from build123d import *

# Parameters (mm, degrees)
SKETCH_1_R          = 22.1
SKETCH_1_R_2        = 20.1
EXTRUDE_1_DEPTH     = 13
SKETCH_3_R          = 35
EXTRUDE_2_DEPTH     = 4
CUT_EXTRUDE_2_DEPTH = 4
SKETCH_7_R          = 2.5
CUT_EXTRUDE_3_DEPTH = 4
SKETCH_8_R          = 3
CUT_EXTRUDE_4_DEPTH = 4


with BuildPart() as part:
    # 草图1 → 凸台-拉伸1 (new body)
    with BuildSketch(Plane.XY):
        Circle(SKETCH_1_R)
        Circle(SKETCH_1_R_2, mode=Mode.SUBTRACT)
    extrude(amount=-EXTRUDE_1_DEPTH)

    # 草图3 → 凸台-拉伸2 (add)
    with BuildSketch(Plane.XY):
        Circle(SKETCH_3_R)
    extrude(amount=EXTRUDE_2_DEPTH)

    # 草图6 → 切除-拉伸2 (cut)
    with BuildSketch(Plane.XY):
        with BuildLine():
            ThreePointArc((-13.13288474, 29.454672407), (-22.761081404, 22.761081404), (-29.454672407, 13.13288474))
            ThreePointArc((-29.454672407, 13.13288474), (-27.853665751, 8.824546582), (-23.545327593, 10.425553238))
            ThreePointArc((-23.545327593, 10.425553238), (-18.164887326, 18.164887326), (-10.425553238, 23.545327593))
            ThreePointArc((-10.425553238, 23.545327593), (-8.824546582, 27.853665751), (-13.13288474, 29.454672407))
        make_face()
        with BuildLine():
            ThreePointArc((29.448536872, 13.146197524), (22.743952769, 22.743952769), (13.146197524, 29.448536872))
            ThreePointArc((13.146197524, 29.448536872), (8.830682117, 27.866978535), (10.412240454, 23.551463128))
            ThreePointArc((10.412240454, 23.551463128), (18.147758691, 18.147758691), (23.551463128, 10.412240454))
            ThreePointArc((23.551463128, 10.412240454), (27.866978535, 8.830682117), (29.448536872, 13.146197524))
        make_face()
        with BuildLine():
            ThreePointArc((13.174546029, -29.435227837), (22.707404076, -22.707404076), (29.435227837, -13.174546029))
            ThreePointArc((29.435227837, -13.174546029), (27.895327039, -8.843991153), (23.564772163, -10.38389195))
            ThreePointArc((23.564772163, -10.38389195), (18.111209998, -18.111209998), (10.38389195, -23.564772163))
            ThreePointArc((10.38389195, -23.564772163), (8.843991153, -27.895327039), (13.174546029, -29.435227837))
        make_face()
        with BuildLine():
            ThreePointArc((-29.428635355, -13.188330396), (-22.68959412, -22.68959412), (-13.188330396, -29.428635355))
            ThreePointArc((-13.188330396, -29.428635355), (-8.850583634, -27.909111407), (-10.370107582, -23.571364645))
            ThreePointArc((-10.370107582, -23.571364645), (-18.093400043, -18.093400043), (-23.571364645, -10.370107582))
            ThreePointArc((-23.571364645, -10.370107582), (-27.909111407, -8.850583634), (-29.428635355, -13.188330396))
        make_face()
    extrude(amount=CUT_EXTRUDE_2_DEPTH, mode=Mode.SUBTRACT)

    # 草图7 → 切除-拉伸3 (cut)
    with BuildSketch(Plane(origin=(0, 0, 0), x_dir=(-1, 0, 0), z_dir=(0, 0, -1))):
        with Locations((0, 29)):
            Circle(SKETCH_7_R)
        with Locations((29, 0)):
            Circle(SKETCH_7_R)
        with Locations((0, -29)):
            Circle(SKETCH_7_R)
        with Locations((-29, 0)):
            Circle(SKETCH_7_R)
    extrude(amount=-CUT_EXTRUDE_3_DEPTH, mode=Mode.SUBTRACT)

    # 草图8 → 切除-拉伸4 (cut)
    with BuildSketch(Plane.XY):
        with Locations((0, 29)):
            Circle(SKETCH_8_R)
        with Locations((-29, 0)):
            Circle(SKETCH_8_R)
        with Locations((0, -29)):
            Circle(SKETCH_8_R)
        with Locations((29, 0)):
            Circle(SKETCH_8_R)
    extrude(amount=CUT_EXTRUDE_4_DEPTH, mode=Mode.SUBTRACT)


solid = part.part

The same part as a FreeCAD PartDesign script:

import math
import FreeCAD as App
import Part
import Sketcher

doc = App.newDocument("Part")
params = doc.addObject("Spreadsheet::Sheet", "Params")
for row, (alias, value) in enumerate([
    ("sketch1_diameter", "44.2 mm"),
    ("sketch1_diameter2", "40.2 mm"),
    ("pad1_length", "13 mm"),
    ("sketch2_diameter", "70 mm"),
    ("pad2_length", "4 mm"),
    ("sketch3_radius", "3.25 mm"),
    ("pocket1_length", "4 mm"),
    ("sketch4_diameter", "5 mm"),
    ("pocket2_length", "4 mm"),
    ("sketch5_diameter", "6 mm"),
    ("pocket3_length", "4 mm"),
], start=1):
    params.set(f"A{row}", alias)
    params.set(f"B{row}", "=" + value)
    params.setAlias(f"B{row}", alias)

body = doc.addObject("PartDesign::Body", "Body")

# Sketch on XY plane
sketch1 = body.newObject("Sketcher::SketchObject", "Sketch")
sketch1.AttachmentSupport = (doc.getObject("XY_Plane"), [""])
sketch1.MapMode = "FlatFace"
sketch1.addGeometry([
    Part.Circle(App.Vector(0, 0, 0), App.Vector(0, 0, 1), 22.1),
    Part.Circle(App.Vector(0, 0, 0), App.Vector(0, 0, 1), 20.1),
], False)
sketch1.addConstraint([
    Sketcher.Constraint("Coincident", 0, 3, -1, 1),
    Sketcher.Constraint("Coincident", 1, 3, -1, 1),
    Sketcher.Constraint("Diameter", 0, 44.2),
    Sketcher.Constraint("Diameter", 1, 40.2),
])
sketch1.setExpression("Constraints[2]", "Params.sketch1_diameter")
sketch1.setExpression("Constraints[3]", "Params.sketch1_diameter2")
pad1 = body.newObject("PartDesign::Pad", "Pad")
pad1.Profile = sketch1
pad1.setExpression("Length", "Params.pad1_length")
pad1.Reversed = True

# Sketch on XY plane
sketch2 = body.newObject("Sketcher::SketchObject", "Sketch001")
sketch2.AttachmentSupport = (doc.getObject("XY_Plane"), [""])
sketch2.MapMode = "FlatFace"
sketch2.addGeometry(Part.Circle(App.Vector(0, 0, 0), App.Vector(0, 0, 1), 35), False)
sketch2.addConstraint([
    Sketcher.Constraint("Coincident", 0, 3, -1, 1),
    Sketcher.Constraint("Diameter", 0, 70.0),
])
sketch2.setExpression("Constraints[1]", "Params.sketch2_diameter")
pad2 = body.newObject("PartDesign::Pad", "Pad001")
pad2.Profile = sketch2
pad2.setExpression("Length", "Params.pad2_length")

# Sketch on XY plane
sketch3 = body.newObject("Sketcher::SketchObject", "Sketch002")
sketch3.AttachmentSupport = (doc.getObject("XY_Plane"), [""])
sketch3.MapMode = "FlatFace"
sketch3.addGeometry([
    Part.ArcOfCircle(Part.Circle(App.Vector(0.667336, -0.667336, 0), App.Vector(0, 0, 1), 33.132785), math.radians(114.614604), math.radians(155.385396)),  # 0
    Part.ArcOfCircle(Part.Circle(App.Vector(-26.5, 11.779219, 0), App.Vector(0, 0, 1), 3.25), math.radians(155.385396), math.radians(335.385396)),  # 1
    Part.ArcOfCircle(Part.Circle(App.Vector(0.667336, -0.667336, 0), App.Vector(0, 0, 1), 26.632785), math.radians(114.614604), math.radians(155.385396)),  # 2
    Part.ArcOfCircle(Part.Circle(App.Vector(-11.779219, 26.5, 0), App.Vector(0, 0, 1), 3.25), math.radians(-65.385396), math.radians(114.614604)),  # 3
    Part.ArcOfCircle(Part.Circle(App.Vector(-0.944303, -0.944303, 0), App.Vector(0, 0, 1), 33.500252), math.radians(24.873028), math.radians(65.126972)),  # 4
    Part.ArcOfCircle(Part.Circle(App.Vector(11.779219, 26.5, 0), App.Vector(0, 0, 1), 3.25), math.radians(65.126972), math.radians(245.126972)),  # 5
    Part.ArcOfCircle(Part.Circle(App.Vector(-0.944303, -0.944303, 0), App.Vector(0, 0, 1), 27.000252), math.radians(24.873028), math.radians(65.126972)),  # 6
    Part.ArcOfCircle(Part.Circle(App.Vector(26.5, 11.779219, 0), App.Vector(0, 0, 1), 3.25), math.radians(-155.126972), math.radians(24.873028)),  # 7
    Part.ArcOfCircle(Part.Circle(App.Vector(-1.5595, 1.5595, 0), App.Vector(0, 0, 1), 34.318585), math.radians(-64.574864), math.radians(-25.425136)),  # 8
    Part.ArcOfCircle(Part.Circle(App.Vector(26.5, -11.779219, 0), App.Vector(0, 0, 1), 3.25), math.radians(-25.425136), math.radians(154.574864)),  # 9
    Part.ArcOfCircle(Part.Circle(App.Vector(-1.5595, 1.5595, 0), App.Vector(0, 0, 1), 27.818585), math.radians(-64.574864), math.radians(-25.425136)),  # 10
    Part.ArcOfCircle(Part.Circle(App.Vector(11.779219, -26.5, 0), App.Vector(0, 0, 1), 3.25), math.radians(115.425136), math.radians(295.425136)),  # 11
    Part.ArcOfCircle(Part.Circle(App.Vector(1.871912, 1.871912, 0), App.Vector(0, 0, 1), 34.735215), math.radians(-154.30549), math.radians(-115.69451)),  # 12
    Part.ArcOfCircle(Part.Circle(App.Vector(-11.779219, -26.5, 0), App.Vector(0, 0, 1), 3.25), math.radians(-115.69451), math.radians(64.30549)),  # 13
    Part.ArcOfCircle(Part.Circle(App.Vector(1.871912, 1.871912, 0), App.Vector(0, 0, 1), 28.235215), math.radians(-154.30549), math.radians(-115.69451)),  # 14
    Part.ArcOfCircle(Part.Circle(App.Vector(-26.5, -11.779219, 0), App.Vector(0, 0, 1), 3.25), math.radians(25.69451), math.radians(205.69451)),  # 15
], False)
sketch3.addConstraint([
    Sketcher.Constraint("Tangent", 0, 2, 1, 1),
    Sketcher.Constraint("Tangent", 1, 2, 2, 2),
    Sketcher.Constraint("Tangent", 2, 1, 3, 1),
    Sketcher.Constraint("Tangent", 3, 2, 0, 1),
    Sketcher.Constraint("Tangent", 4, 2, 5, 1),
    Sketcher.Constraint("Tangent", 5, 2, 6, 2),
    Sketcher.Constraint("Tangent", 6, 1, 7, 1),
    Sketcher.Constraint("Tangent", 7, 2, 4, 1),
    Sketcher.Constraint("Tangent", 8, 2, 9, 1),
    Sketcher.Constraint("Tangent", 9, 2, 10, 2),
    Sketcher.Constraint("Tangent", 10, 1, 11, 1),
    Sketcher.Constraint("Tangent", 11, 2, 8, 1),
    Sketcher.Constraint("Tangent", 12, 2, 13, 1),
    Sketcher.Constraint("Tangent", 13, 2, 14, 2),
    Sketcher.Constraint("Tangent", 14, 1, 15, 1),
    Sketcher.Constraint("Tangent", 15, 2, 12, 1),
    Sketcher.Constraint("Coincident", 2, 3, 0, 3),
    Sketcher.Constraint("Coincident", 6, 3, 4, 3),
    Sketcher.Constraint("Coincident", 10, 3, 8, 3),
    Sketcher.Constraint("Coincident", 14, 3, 12, 3),
    Sketcher.Constraint("Equal", 3, 5),
    Sketcher.Constraint("Equal", 7, 9),
    Sketcher.Constraint("Equal", 11, 13),
    Sketcher.Constraint("Symmetric", 1, 3, 9, 3, -1, 1),
    Sketcher.Constraint("Symmetric", 3, 3, 11, 3, -1, 1),
    Sketcher.Constraint("Symmetric", 5, 3, 13, 3, -1, 1),
    Sketcher.Constraint("Symmetric", 7, 3, 15, 3, -1, 1),
    Sketcher.Constraint("Symmetric", 3, 3, 5, 3, -2),
    Sketcher.Constraint("Symmetric", 1, 3, 7, 3, -2),
    Sketcher.Constraint("Radius", 1, 3.25),
    Sketcher.Constraint("DistanceX", 1, 3, -1, 1, 26.5),
    Sketcher.Constraint("DistanceY", -1, 1, 3, 3, 26.5),
    Sketcher.Constraint("Radius", 0, 33.132785),
    Sketcher.Constraint("Radius", 4, 33.500252),
    Sketcher.Constraint("Radius", 8, 34.318585),
    Sketcher.Constraint("Radius", 12, 34.735215),
    Sketcher.Constraint("DistanceX", 13, 2, 10, 1, 20.754),
    Sketcher.Constraint("DistanceX", 8, 3, -1, 1, 1.5595),
])
sketch3.setExpression("Constraints[29]", "Params.sketch3_radius")
pocket1 = body.newObject("PartDesign::Pocket", "Pocket")
pocket1.Profile = sketch3
pocket1.setExpression("Length", "Params.pocket1_length")
pocket1.Reversed = True

# Sketch on XY plane
sketch4 = body.newObject("Sketcher::SketchObject", "Sketch003")
sketch4.AttachmentSupport = (doc.getObject("XY_Plane"), [""])
sketch4.MapMode = "FlatFace"
sketch4.addGeometry([
    Part.Circle(App.Vector(0, 29, 0), App.Vector(0, 0, 1), 2.5),
    Part.Circle(App.Vector(-29, 0, 0), App.Vector(0, 0, 1), 2.5),
    Part.Circle(App.Vector(0, -29, 0), App.Vector(0, 0, 1), 2.5),
    Part.Circle(App.Vector(29, 0, 0), App.Vector(0, 0, 1), 2.5),
], False)
sketch4.addConstraint([
    Sketcher.Constraint("Equal", 0, 1),
    Sketcher.Constraint("Equal", 1, 2),
    Sketcher.Constraint("Equal", 2, 3),
    Sketcher.Constraint("Symmetric", 0, 3, 2, 3, -1, 1),
    Sketcher.Constraint("Symmetric", 1, 3, 3, 3, -1, 1),
    Sketcher.Constraint("PointOnObject", 0, 3, -2),
    Sketcher.Constraint("PointOnObject", 1, 3, -1),
    Sketcher.Constraint("Diameter", 0, 5.0),
    Sketcher.Constraint("DistanceY", -1, 1, 0, 3, 29.0),
    Sketcher.Constraint("DistanceX", 1, 3, -1, 1, 29.0),
])
sketch4.setExpression("Constraints[7]", "Params.sketch4_diameter")
pocket2 = body.newObject("PartDesign::Pocket", "Pocket001")
pocket2.Profile = sketch4
pocket2.setExpression("Length", "Params.pocket2_length")
pocket2.Reversed = True

# Sketch on XY plane
sketch5 = body.newObject("Sketcher::SketchObject", "Sketch004")
sketch5.AttachmentSupport = (doc.getObject("XY_Plane"), [""])
sketch5.MapMode = "FlatFace"
sketch5.addGeometry([
    Part.Circle(App.Vector(0, 29, 0), App.Vector(0, 0, 1), 3),
    Part.Circle(App.Vector(-29, 0, 0), App.Vector(0, 0, 1), 3),
    Part.Circle(App.Vector(0, -29, 0), App.Vector(0, 0, 1), 3),
    Part.Circle(App.Vector(29, 0, 0), App.Vector(0, 0, 1), 3),
], False)
sketch5.addConstraint([
    Sketcher.Constraint("Equal", 0, 1),
    Sketcher.Constraint("Equal", 1, 2),
    Sketcher.Constraint("Equal", 2, 3),
    Sketcher.Constraint("Symmetric", 0, 3, 2, 3, -1, 1),
    Sketcher.Constraint("Symmetric", 1, 3, 3, 3, -1, 1),
    Sketcher.Constraint("PointOnObject", 0, 3, -2),
    Sketcher.Constraint("PointOnObject", 1, 3, -1),
    Sketcher.Constraint("Diameter", 0, 6.0),
    Sketcher.Constraint("DistanceY", -1, 1, 0, 3, 29.0),
    Sketcher.Constraint("DistanceX", 1, 3, -1, 1, 29.0),
])
sketch5.setExpression("Constraints[7]", "Params.sketch5_diameter")
pocket3 = body.newObject("PartDesign::Pocket", "Pocket002")
pocket3.Profile = sketch5
pocket3.setExpression("Length", "Params.pocket3_length")
pocket3.Reversed = True

doc.recompute()
